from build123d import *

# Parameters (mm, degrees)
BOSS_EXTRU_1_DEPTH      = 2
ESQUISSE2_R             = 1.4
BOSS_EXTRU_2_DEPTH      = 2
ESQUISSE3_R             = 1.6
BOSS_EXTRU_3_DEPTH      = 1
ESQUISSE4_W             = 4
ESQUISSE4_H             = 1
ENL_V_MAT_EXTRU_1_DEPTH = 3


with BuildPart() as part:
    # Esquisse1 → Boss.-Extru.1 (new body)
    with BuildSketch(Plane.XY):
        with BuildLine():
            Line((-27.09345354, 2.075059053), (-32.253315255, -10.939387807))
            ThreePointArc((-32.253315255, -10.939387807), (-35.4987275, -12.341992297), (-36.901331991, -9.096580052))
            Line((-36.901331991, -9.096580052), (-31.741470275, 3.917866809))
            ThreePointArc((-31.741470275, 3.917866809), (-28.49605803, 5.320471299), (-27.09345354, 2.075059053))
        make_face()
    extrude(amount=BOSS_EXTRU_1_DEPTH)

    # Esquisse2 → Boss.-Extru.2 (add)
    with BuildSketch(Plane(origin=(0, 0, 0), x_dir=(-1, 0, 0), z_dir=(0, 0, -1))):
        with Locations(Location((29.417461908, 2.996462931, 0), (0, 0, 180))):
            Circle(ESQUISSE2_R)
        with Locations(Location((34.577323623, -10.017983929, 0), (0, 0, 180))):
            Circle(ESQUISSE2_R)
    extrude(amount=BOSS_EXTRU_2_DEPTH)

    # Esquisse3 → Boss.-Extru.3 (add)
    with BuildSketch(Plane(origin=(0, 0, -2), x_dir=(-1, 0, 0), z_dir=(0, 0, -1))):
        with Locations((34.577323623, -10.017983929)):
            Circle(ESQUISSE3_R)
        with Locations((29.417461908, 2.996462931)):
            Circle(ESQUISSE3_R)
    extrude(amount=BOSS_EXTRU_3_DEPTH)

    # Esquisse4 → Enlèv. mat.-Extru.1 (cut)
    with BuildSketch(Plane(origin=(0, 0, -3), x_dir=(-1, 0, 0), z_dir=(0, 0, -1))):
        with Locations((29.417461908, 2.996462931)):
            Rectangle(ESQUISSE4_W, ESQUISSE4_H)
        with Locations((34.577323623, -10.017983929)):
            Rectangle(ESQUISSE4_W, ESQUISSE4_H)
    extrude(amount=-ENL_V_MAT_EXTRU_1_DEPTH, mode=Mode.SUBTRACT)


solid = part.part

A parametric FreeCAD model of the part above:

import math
import FreeCAD as App
import Part
import Sketcher

V = App.Vector

doc = App.newDocument("Part")
body = doc.addObject("PartDesign::Body", "Body")

sketch1 = doc.addObject("Sketcher::SketchObject", "Sketch")
body.addObject(sketch1)
sketch1.AttachmentSupport = (doc.XY_Plane, [""])
sketch1.MapMode = "FlatFace"
sketch1.addGeometry([
    Part.LineSegment(V(-32.3, -10.9, 0), V(-27.1, 2.1, 0)),
    Part.ArcOfCircle(Part.Circle(V(-29.4, 3, 0), V(0, 0, 1), 2.5), math.radians(-22), math.radians(158)),
    Part.LineSegment(V(-31.7, 3.9, 0), V(-36.9, -9.1, 0)),
    Part.ArcOfCircle(Part.Circle(V(-34.6, -10, 0), V(0, 0, 1), 2.5), math.radians(158), math.radians(338)),
], False)
sketch1.addConstraint([
    Sketcher.Constraint("Tangent", 0, 2, 1, 1),
    Sketcher.Constraint("Tangent", 1, 2, 2, 1),
    Sketcher.Constraint("Tangent", 2, 2, 3, 1),
    Sketcher.Constraint("Tangent", 3, 2, 0, 1),
    Sketcher.Constraint("Equal", 1, 3),
    Sketcher.Constraint("Radius", 1, 2.5),
    Sketcher.Constraint("Distance", 0, 14.0),
    Sketcher.Constraint("DistanceX", 1, 3, -1, 1, 29.417462),
    Sketcher.Constraint("DistanceY", -1, 1, 0, 2, 2.075059),
    Sketcher.Constraint("DistanceX", 1, 2, -1, 1, 31.74147),
])
pad1 = doc.addObject("PartDesign::Pad", "Pad")
body.addObject(pad1)
pad1.Profile = sketch1
pad1.Length = 2

sketch2 = doc.addObject("Sketcher::SketchObject", "Sketch001")
body.addObject(sketch2)
sketch2.AttachmentSupport = (doc.XY_Plane, [""])
sketch2.MapMode = "FlatFace"
sketch2.addGeometry([
    Part.Circle(V(-29.4, 3, 0), V(0, 0, 1), 1.4),
    Part.Circle(V(-34.6, -10, 0), V(0, 0, 1), 1.4),
], False)
sketch2.addConstraint([
    Sketcher.Constraint("Equal", 0, 1),
    Sketcher.Constraint("Diameter", 0, 2.8),
    Sketcher.Constraint("DistanceX", 0, 3, -1, 1, 29.417462),
    Sketcher.Constraint("DistanceX", 1, 3, 0, 3, 5.159862),
    Sketcher.Constraint("DistanceY", -1, 1, 0, 3, 2.996463),
    Sketcher.Constraint("DistanceY", 1, 3, -1, 1, 10.017984),
])
pad2 = doc.addObject("PartDesign::Pad", "Pad001")
body.addObject(pad2)
pad2.Profile = sketch2
pad2.Length = 2
pad2.Reversed = True

sketch3 = doc.addObject("Sketcher::SketchObject", "Sketch002")
body.addObject(sketch3)
sketch3.AttachmentSupport = (doc.XY_Plane, [""])
sketch3.MapMode = "FlatFace"
sketch3.AttachmentOffset = App.Placement(V(0, 0, -2), App.Rotation())
sketch3.addGeometry([
    Part.Circle(V(-34.6, -10, 0), V(0, 0, 1), 1.6),
    Part.Circle(V(-29.4, 3, 0), V(0, 0, 1), 1.6),
], False)
sketch3.addConstraint([
    Sketcher.Constraint("Equal", 0, 1),
    Sketcher.Constraint("Diameter", 0, 3.2),
    Sketcher.Constraint("DistanceX", 1, 3, -1, 1, 29.417462),
    Sketcher.Constraint("DistanceX", 0, 3, 1, 3, 5.159862),
    Sketcher.Constraint("DistanceY", 0, 3, -1, 1, 10.017984),
    Sketcher.Constraint("DistanceY", -1, 1, 1, 3, 2.996463),
])
pad3 = doc.addObject("PartDesign::Pad", "Pad002")
body.addObject(pad3)
pad3.Profile = sketch3
pad3.Length = 1
pad3.Reversed = True

sketch4 = doc.addObject("Sketcher::SketchObject", "Sketch003")
body.addObject(sketch4)
sketch4.AttachmentSupport = (doc.XY_Plane, [""])
sketch4.MapMode = "FlatFace"
sketch4.AttachmentOffset = App.Placement(V(0, 0, -3), App.Rotation())
sketch4.addGeometry([
    Part.LineSegment(V(-27.4, 3.5, 0), V(-27.4, 2.5, 0)),
    Part.LineSegment(V(-27.4, 2.5, 0), V(-31.4, 2.5, 0)),
    Part.LineSegment(V(-31.4, 2.5, 0), V(-31.4, 3.5, 0)),
    Part.LineSegment(V(-31.4, 3.5, 0), V(-27.4, 3.5, 0)),
    Part.LineSegment(V(-32.6, -9.5, 0), V(-32.6, -10.5, 0)),
    Part.LineSegment(V(-32.6, -10.5, 0), V(-36.6, -10.5, 0)),
    Part.LineSegment(V(-36.6, -10.5, 0), V(-36.6, -9.5, 0)),
    Part.LineSegment(V(-36.6, -9.5, 0), V(-32.6, -9.5, 0)),
], False)
sketch4.addConstraint([
    Sketcher.Constraint("Coincident", 0, 2, 1, 1),
    Sketcher.Constraint("Coincident", 1, 2, 2, 1),
    Sketcher.Constraint("Coincident", 2, 2, 3, 1),
    Sketcher.Constraint("Coincident", 3, 2, 0, 1),
    Sketcher.Constraint("Coincident", 4, 2, 5, 1),
    Sketcher.Constraint("Coincident", 5, 2, 6, 1),
    Sketcher.Constraint("Coincident", 6, 2, 7, 1),
    Sketcher.Constraint("Coincident", 7, 2, 4, 1),
    Sketcher.Constraint("Vertical", 0),
    Sketcher.Constraint("Horizontal", 1),
    Sketcher.Constraint("Vertical", 2),
    Sketcher.Constraint("Horizontal", 3),
    Sketcher.Constraint("Vertical", 4),
    Sketcher.Constraint("Horizontal", 5),
    Sketcher.Constraint("Vertical", 6),
    Sketcher.Constraint("Horizontal", 7),
    Sketcher.Constraint("Equal", 3, 5),
    Sketcher.Constraint("Equal", 2, 4),
    Sketcher.Constraint("DistanceX", 1, 2, 1, 1, 4.0),
    Sketcher.Constraint("DistanceY", 0, 2, 0, 1, 1.0),
    Sketcher.Constraint("DistanceX", 0, 2, -1, 1, 27.417462),
    Sketcher.Constraint("DistanceX", 4, 2, 1, 2, 1.159862),
    Sketcher.Constraint("DistanceY", -1, 1, 0, 2, 2.496463),
    Sketcher.Constraint("DistanceY", 4, 2, -1, 1, 10.517984),
])
pocket1 = doc.addObject("PartDesign::Pocket", "Pocket")
body.addObject(pocket1)
pocket1.Profile = sketch4
pocket1.Length = 3
pocket1.Reversed = True

doc.recompute()
